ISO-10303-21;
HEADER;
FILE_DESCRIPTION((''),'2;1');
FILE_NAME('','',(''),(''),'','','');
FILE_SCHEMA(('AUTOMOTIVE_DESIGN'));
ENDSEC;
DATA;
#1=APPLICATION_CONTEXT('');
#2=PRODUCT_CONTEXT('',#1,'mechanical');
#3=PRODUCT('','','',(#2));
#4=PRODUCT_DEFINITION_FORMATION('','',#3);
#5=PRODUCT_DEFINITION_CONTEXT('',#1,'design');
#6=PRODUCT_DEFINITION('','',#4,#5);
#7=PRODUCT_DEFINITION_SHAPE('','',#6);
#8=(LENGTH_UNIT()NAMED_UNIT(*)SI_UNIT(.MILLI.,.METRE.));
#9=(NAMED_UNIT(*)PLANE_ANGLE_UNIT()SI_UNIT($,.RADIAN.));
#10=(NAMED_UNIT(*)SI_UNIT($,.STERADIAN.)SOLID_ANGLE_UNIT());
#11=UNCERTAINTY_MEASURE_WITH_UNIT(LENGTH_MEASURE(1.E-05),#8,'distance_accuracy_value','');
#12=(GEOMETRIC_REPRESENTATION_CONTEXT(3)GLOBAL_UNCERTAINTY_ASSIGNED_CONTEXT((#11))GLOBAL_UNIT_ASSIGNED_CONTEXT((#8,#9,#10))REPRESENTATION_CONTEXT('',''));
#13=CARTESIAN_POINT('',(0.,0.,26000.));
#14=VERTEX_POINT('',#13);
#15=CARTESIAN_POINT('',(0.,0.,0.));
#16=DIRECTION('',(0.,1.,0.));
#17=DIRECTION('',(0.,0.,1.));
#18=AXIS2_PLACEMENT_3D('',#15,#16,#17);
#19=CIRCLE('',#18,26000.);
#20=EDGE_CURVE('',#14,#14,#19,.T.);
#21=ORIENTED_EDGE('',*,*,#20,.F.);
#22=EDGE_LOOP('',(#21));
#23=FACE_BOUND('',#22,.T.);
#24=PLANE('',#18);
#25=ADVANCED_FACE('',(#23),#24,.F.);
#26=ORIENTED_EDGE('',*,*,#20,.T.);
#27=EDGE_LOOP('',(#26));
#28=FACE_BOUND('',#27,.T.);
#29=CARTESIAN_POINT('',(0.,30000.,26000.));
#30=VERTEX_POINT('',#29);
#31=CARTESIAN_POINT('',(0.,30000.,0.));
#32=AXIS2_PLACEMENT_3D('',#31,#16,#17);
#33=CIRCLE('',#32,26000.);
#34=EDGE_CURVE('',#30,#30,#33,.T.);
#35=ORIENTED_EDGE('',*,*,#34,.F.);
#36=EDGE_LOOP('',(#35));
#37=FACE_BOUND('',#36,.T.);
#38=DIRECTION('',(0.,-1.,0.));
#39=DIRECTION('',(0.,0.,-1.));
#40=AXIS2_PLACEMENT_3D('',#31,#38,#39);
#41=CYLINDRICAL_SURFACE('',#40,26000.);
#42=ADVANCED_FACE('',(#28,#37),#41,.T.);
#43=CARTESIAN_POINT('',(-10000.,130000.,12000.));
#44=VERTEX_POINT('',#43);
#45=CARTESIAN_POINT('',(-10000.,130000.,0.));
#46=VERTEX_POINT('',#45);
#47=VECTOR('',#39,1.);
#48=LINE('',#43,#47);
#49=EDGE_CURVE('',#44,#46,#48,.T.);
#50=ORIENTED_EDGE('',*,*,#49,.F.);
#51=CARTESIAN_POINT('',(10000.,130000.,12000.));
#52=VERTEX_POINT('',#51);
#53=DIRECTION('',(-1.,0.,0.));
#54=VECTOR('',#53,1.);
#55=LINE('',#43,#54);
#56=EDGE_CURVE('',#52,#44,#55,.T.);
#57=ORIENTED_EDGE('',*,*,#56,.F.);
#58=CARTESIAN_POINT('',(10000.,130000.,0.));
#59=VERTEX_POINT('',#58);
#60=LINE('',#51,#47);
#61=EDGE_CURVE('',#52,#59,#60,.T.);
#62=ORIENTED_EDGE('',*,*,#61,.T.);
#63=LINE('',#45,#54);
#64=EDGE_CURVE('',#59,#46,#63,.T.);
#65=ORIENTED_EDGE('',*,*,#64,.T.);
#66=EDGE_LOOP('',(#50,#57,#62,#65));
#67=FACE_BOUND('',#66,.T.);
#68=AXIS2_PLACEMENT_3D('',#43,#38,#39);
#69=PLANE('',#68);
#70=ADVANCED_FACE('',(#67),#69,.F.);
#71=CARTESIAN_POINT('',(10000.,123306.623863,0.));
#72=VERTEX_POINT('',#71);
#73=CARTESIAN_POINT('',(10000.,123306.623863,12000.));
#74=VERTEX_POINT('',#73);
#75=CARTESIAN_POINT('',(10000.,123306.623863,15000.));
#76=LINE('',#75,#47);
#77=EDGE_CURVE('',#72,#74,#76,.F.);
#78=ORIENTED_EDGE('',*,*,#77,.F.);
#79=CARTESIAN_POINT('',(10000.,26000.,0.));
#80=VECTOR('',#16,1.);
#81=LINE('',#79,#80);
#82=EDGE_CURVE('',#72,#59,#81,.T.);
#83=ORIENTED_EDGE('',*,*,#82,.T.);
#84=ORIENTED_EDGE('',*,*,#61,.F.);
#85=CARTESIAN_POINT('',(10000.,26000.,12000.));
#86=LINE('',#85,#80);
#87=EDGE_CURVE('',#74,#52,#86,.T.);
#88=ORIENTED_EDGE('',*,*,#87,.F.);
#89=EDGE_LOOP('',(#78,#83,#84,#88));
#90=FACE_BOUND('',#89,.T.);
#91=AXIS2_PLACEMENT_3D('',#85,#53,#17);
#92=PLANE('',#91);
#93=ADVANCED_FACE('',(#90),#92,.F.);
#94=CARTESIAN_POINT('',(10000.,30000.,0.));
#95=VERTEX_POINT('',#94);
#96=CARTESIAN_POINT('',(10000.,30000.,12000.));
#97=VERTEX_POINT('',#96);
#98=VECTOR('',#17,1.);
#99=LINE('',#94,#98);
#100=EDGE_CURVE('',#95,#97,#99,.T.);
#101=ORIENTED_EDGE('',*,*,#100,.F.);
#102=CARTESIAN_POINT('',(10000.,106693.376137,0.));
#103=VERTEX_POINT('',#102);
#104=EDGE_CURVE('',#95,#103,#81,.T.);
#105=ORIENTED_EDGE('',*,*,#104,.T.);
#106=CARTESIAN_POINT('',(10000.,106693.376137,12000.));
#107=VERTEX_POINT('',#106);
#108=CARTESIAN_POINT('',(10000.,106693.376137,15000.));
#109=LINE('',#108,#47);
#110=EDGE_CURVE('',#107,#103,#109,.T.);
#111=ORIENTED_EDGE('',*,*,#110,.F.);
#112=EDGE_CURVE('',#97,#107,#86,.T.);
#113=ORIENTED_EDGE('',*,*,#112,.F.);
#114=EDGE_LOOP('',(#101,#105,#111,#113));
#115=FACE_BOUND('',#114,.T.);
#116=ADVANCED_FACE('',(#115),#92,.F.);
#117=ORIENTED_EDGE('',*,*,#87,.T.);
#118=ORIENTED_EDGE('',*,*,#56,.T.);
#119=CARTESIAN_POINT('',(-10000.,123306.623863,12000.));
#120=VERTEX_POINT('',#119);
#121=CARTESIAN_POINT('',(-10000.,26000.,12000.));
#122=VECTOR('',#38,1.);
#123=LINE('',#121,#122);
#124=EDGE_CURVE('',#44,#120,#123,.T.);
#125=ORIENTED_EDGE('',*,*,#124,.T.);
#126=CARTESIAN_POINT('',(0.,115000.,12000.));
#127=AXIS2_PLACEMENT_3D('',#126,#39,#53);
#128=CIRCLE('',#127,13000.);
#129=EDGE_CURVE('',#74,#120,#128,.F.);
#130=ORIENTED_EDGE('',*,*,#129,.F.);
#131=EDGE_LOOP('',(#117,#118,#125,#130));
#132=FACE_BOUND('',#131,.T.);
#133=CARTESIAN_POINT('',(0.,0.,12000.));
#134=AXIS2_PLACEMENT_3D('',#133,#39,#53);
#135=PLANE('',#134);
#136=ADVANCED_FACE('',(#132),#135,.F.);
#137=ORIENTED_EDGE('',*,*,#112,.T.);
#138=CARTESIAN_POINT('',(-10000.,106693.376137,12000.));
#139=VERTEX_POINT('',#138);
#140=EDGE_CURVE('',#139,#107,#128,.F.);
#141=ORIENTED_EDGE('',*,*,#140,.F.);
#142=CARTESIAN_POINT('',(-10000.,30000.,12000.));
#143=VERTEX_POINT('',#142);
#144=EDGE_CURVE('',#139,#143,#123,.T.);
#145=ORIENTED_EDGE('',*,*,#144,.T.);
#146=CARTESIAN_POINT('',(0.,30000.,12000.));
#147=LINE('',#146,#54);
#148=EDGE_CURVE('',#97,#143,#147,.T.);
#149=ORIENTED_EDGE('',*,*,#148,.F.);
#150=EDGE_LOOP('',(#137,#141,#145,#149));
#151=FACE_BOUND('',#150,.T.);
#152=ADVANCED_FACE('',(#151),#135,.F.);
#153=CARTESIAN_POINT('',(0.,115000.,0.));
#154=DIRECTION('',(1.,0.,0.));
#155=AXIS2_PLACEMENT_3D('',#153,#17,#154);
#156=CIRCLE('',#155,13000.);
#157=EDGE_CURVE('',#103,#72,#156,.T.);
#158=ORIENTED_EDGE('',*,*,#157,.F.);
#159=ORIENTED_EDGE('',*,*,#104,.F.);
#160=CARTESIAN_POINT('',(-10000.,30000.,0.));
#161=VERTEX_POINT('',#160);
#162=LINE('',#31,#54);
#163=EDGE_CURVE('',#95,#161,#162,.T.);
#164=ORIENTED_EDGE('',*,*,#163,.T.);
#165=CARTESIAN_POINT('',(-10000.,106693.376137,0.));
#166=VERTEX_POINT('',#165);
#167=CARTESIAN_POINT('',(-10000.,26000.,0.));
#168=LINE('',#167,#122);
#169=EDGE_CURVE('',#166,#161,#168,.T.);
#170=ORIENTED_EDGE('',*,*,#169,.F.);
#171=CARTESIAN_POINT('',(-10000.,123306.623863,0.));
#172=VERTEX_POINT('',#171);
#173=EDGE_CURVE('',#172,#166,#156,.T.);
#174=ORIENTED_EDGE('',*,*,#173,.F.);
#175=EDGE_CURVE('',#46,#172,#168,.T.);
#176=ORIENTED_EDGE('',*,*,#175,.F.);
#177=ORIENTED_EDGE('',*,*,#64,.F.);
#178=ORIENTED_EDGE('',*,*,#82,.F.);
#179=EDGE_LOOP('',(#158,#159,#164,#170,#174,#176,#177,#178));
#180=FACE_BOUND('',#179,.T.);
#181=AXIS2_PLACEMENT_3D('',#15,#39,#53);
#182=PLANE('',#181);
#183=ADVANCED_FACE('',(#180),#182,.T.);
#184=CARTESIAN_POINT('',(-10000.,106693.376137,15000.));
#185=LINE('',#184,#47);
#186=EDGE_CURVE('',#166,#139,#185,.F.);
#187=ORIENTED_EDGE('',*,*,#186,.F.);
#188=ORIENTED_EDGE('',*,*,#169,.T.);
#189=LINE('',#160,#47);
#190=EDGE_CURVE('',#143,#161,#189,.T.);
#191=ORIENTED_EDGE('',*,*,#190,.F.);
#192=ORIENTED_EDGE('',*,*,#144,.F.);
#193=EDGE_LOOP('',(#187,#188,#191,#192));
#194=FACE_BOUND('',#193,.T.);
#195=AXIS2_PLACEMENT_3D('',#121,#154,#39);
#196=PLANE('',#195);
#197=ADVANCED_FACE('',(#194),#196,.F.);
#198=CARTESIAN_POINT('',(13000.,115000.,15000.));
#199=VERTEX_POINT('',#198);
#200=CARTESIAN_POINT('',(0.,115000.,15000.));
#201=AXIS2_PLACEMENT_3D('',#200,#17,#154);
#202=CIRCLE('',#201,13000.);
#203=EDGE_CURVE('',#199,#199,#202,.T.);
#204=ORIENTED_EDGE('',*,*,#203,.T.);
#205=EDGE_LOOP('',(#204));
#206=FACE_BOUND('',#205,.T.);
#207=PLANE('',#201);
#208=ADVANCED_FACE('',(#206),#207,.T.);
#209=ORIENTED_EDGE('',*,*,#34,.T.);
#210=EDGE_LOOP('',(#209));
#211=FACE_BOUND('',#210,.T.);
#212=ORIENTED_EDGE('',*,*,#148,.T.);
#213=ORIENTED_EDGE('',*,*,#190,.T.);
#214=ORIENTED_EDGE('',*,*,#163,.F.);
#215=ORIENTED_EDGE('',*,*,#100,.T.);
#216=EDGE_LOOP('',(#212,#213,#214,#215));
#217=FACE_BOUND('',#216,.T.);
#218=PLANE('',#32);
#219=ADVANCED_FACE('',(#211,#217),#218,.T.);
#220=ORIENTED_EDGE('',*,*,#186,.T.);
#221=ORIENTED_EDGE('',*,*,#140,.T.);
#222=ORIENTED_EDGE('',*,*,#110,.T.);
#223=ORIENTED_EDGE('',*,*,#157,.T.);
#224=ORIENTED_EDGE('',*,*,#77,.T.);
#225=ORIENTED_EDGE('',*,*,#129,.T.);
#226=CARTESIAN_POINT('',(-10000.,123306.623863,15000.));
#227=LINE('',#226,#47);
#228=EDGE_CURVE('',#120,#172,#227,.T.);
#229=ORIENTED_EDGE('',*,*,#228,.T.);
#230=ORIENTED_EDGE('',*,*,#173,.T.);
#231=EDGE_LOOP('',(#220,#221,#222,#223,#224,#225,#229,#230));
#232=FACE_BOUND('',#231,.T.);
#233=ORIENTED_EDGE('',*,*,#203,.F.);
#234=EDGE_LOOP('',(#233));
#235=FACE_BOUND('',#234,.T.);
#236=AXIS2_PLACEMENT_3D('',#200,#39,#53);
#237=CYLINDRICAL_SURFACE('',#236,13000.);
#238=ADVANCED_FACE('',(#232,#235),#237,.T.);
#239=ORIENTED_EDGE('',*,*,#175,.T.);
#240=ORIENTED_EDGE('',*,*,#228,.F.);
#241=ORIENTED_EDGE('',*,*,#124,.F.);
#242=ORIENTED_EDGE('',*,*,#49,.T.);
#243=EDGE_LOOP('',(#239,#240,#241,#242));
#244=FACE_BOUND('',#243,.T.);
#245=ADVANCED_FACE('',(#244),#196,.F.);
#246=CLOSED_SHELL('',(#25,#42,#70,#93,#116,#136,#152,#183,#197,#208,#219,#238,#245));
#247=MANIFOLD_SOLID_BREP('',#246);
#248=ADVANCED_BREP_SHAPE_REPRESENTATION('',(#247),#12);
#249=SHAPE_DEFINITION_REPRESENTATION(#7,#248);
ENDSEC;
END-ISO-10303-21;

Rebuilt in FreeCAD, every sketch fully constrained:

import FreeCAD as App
import Part
import Sketcher

doc = App.newDocument("Part")
body = doc.addObject("PartDesign::Body", "Body")

# Sketch on XZ plane
sketch1 = doc.addObject("Sketcher::SketchObject", "Sketch")
body.addObject(sketch1)
sketch1.AttachmentSupport = (doc.XZ_Plane, [""])
sketch1.MapMode = "FlatFace"
sketch1.addGeometry(Part.Circle(App.Vector(0, 0, 0), App.Vector(0, 0, 1), 26000), False)
sketch1.addConstraint(Sketcher.Constraint("Coincident", 0, 3, -1, 1))
sketch1.addConstraint(Sketcher.Constraint("Diameter", 0, 52000.0))
pad1 = doc.addObject("PartDesign::Pad", "Pad")
body.addObject(pad1)
pad1.Profile = sketch1
pad1.Length = 30000
pad1.Reversed = True

# Sketch on XY plane
sketch2 = doc.addObject("Sketcher::SketchObject", "Sketch001")
body.addObject(sketch2)
sketch2.AttachmentSupport = (doc.XY_Plane, [""])
sketch2.MapMode = "FlatFace"
sketch2.addGeometry(Part.LineSegment(App.Vector(-10000, 130000, 0), App.Vector(-10000, 26000, 0)), False)
sketch2.addGeometry(Part.LineSegment(App.Vector(-10000, 26000, 0), App.Vector(10000, 26000, 0)), False)
sketch2.addGeometry(Part.LineSegment(App.Vector(10000, 26000, 0), App.Vector(10000, 130000, 0)), False)
sketch2.addGeometry(Part.LineSegment(App.Vector(10000, 130000, 0), App.Vector(-10000, 130000, 0)), False)
sketch2.addConstraint(Sketcher.Constraint("Coincident", 0, 2, 1, 1))
sketch2.addConstraint(Sketcher.Constraint("Coincident", 1, 2, 2, 1))
sketch2.addConstraint(Sketcher.Constraint("Coincident", 2, 2, 3, 1))
sketch2.addConstraint(Sketcher.Constraint("Coincident", 3, 2, 0, 1))
sketch2.addConstraint(Sketcher.Constraint("Vertical", 0))
sketch2.addConstraint(Sketcher.Constraint("Horizontal", 1))
sketch2.addConstraint(Sketcher.Constraint("Vertical", 2))
sketch2.addConstraint(Sketcher.Constraint("Horizontal", 3))
sketch2.addConstraint(Sketcher.Constraint("DistanceX", 1, 1, 1, 2, 20000.0))
sketch2.addConstraint(Sketcher.Constraint("DistanceY", 0, 2, 0, 1, 104000.0))
sketch2.addConstraint(Sketcher.Constraint("DistanceX", 0, 2, -1, 1, 10000.0))
sketch2.addConstraint(Sketcher.Constraint("DistanceY", -1, 1, 0, 2, 26000.0))
pad2 = doc.addObject("PartDesign::Pad", "Pad001")
body.addObject(pad2)
pad2.Profile = sketch2
pad2.Length = 12000

# Sketch on XY plane
sketch3 = doc.addObject("Sketcher::SketchObject", "Sketch002")
body.addObject(sketch3)
sketch3.AttachmentSupport = (doc.XY_Plane, [""])
sketch3.MapMode = "FlatFace"
sketch3.addGeometry(Part.Circle(App.Vector(0, 115000, 0), App.Vector(0, 0, 1), 13000), False)
sketch3.addConstraint(Sketcher.Constraint("PointOnObject", 0, 3, -2))
sketch3.addConstraint(Sketcher.Constraint("Diameter", 0, 26000.0))
sketch3.addConstraint(Sketcher.Constraint("DistanceY", -1, 1, 0, 3, 115000.0))
pad3 = doc.addObject("PartDesign::Pad", "Pad002")
body.addObject(pad3)
pad3.Profile = sketch3
pad3.Length = 15000

doc.recompute()
